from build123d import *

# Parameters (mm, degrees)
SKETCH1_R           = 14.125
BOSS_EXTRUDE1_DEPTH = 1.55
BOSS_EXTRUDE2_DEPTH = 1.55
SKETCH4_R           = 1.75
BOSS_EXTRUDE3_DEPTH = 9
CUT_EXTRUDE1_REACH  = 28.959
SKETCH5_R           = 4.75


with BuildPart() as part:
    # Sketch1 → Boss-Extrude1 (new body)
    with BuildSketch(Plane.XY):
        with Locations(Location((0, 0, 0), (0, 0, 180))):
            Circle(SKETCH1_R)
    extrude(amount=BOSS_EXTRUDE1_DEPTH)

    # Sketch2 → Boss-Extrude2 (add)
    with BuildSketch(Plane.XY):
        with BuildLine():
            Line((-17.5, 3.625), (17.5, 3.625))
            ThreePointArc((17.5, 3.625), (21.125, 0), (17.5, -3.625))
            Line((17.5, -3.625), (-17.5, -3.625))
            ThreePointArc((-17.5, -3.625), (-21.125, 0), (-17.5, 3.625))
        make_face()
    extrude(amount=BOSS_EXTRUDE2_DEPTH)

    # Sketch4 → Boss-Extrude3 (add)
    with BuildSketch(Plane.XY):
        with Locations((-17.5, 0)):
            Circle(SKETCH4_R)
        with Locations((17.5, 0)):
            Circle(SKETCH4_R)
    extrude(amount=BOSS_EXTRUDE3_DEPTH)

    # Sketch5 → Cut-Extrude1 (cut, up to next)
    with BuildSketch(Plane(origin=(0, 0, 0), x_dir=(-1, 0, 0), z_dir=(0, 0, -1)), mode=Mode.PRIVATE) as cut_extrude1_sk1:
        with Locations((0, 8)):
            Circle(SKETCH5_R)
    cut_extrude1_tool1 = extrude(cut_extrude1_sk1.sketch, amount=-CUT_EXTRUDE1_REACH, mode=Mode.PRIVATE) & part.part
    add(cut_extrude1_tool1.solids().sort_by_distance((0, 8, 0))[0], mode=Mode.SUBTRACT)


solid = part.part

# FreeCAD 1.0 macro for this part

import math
import FreeCAD as App
import Part
import Sketcher
from FreeCAD import Vector

doc = App.newDocument("Part")
body = doc.addObject("PartDesign::Body", "Body")

# Sketch on XY plane
sketch1 = body.newObject("Sketcher::SketchObject", "Sketch")
sketch1.AttachmentSupport = (doc.getObject("XY_Plane"), [""])
sketch1.MapMode = "FlatFace"
sketch1.addGeometry(Part.Circle(Vector(0, 0, 0), Vector(0, 0, 1), 14), False)
sketch1.addConstraint([
    Sketcher.Constraint("Coincident", 0, 3, -1, 1),
    Sketcher.Constraint("Diameter", 0, 28.25),
])
pad1 = body.newObject("PartDesign::Pad", "Pad")
pad1.Profile = sketch1
pad1.Length = 1.55

# Sketch on XY plane
sketch2 = body.newObject("Sketcher::SketchObject", "Sketch001")
sketch2.AttachmentSupport = (doc.getObject("XY_Plane"), [""])
sketch2.MapMode = "FlatFace"
sketch2.addGeometry([
    Part.LineSegment(Vector(17.5, 3.6, 0), Vector(-17.5, 3.6, 0)),
    Part.ArcOfCircle(Part.Circle(Vector(-17.5, 0, 0), Vector(0, 0, 1), 3.6), math.radians(90), math.radians(270)),
    Part.LineSegment(Vector(-17.5, -3.6, 0), Vector(17.5, -3.6, 0)),
    Part.ArcOfCircle(Part.Circle(Vector(17.5, 0, 0), Vector(0, 0, 1), 3.6), math.radians(-90), math.radians(90)),
], False)
sketch2.addConstraint([
    Sketcher.Constraint("Tangent", 0, 2, 1, 1),
    Sketcher.Constraint("Tangent", 1, 2, 2, 1),
    Sketcher.Constraint("Tangent", 2, 2, 3, 1),
    Sketcher.Constraint("Tangent", 3, 2, 0, 1),
    Sketcher.Constraint("Horizontal", 0),
    Sketcher.Constraint("Horizontal", 2),
    Sketcher.Constraint("Symmetric", 1, 3, 3, 3, -1, 1),
    Sketcher.Constraint("DistanceX", 0, 2, 0, 1, 35.0),
    Sketcher.Constraint("Radius", 1, 3.625),
])
pad2 = body.newObject("PartDesign::Pad", "Pad001")
pad2.Profile = sketch2
pad2.Length = 1.55

# Sketch on XY plane
sketch3 = body.newObject("Sketcher::SketchObject", "Sketch002")
sketch3.AttachmentSupport = (doc.getObject("XY_Plane"), [""])
sketch3.MapMode = "FlatFace"
sketch3.addGeometry([
    Part.Circle(Vector(-17.5, 0, 0), Vector(0, 0, 1), 1.8),
    Part.Circle(Vector(17.5, 0, 0), Vector(0, 0, 1), 1.8),
], False)
sketch3.addConstraint([
    Sketcher.Constraint("Equal", 0, 1),
    Sketcher.Constraint("Symmetric", 0, 3, 1, 3, -1, 1),
    Sketcher.Constraint("PointOnObject", 0, 3, -1),
    Sketcher.Constraint("Diameter", 0, 3.5),
    Sketcher.Constraint("DistanceX", 0, 3, 1, 3, 35.0),
])
pad3 = body.newObject("PartDesign::Pad", "Pad002")
pad3.Profile = sketch3
pad3.Length = 9

# Sketch on XY plane
sketch4 = body.newObject("Sketcher::SketchObject", "Sketch003")
sketch4.AttachmentSupport = (doc.getObject("XY_Plane"), [""])
sketch4.MapMode = "FlatFace"
sketch4.addGeometry(Part.Circle(Vector(0, 8, 0), Vector(0, 0, 1), 4.8), False)
sketch4.addConstraint([
    Sketcher.Constraint("PointOnObject", 0, 3, -2),
    Sketcher.Constraint("Diameter", 0, 9.5),
    Sketcher.Constraint("DistanceY", -1, 1, 0, 3, 8.0),
])
pocket1 = body.newObject("PartDesign::Pocket", "Pocket")
pocket1.Profile = sketch4
pocket1.Type = "UpToFirst"
pocket1.Reversed = True

doc.recompute()
